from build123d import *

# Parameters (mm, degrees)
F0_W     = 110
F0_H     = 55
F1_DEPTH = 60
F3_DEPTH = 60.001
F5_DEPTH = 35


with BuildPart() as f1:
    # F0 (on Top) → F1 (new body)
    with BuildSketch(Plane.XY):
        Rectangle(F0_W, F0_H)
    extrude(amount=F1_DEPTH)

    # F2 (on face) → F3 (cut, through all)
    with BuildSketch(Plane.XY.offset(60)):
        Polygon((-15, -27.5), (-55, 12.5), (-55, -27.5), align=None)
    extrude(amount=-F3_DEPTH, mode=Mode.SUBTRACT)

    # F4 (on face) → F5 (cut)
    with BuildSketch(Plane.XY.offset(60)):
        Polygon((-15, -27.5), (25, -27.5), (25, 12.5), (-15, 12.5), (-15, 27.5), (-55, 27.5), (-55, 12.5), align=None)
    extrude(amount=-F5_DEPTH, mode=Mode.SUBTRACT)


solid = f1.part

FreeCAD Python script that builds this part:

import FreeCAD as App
import Part
import Sketcher

V = App.Vector


def add_polygon(sketch, points):
    """Adds a closed chain of lines whose ends are joined by coincident constraints."""
    first, n = sketch.GeometryCount, len(points)
    for a, b in zip(points, points[1:] + points[:1]):
        sketch.addGeometry(Part.LineSegment(App.Vector(*a, 0), App.Vector(*b, 0)), False)
    for i in range(n):
        sketch.addConstraint(Sketcher.Constraint("Coincident", first + i, 2, first + (i + 1) % n, 1))

doc = App.newDocument("Part")
body = doc.addObject("PartDesign::Body", "Body")

sketch1 = body.newObject("Sketcher::SketchObject", "Sketch")
sketch1.AttachmentSupport = (doc.getObject("XY_Plane"), [""])
sketch1.MapMode = "FlatFace"
add_polygon(sketch1, [(-55, 27.5), (-55, -27.5), (55, -27.5), (55, 27.5)])
sketch1.addConstraint([
    Sketcher.Constraint("Vertical", 0),
    Sketcher.Constraint("Horizontal", 1),
    Sketcher.Constraint("Vertical", 2),
    Sketcher.Constraint("Horizontal", 3),
    Sketcher.Constraint("Symmetric", 0, 2, 2, 2, -1, 1),
    Sketcher.Constraint("DistanceX", 1, 1, 1, 2, 110.0),
    Sketcher.Constraint("DistanceY", 0, 2, 0, 1, 55.0),
])
pad1 = body.newObject("PartDesign::Pad", "Pad")
pad1.Profile = sketch1
pad1.Length = 60

sketch2 = body.newObject("Sketcher::SketchObject", "Sketch001")
sketch2.AttachmentSupport = (doc.getObject("XY_Plane"), [""])
sketch2.MapMode = "FlatFace"
sketch2.AttachmentOffset = App.Placement(V(0, 0, 60), App.Rotation())
add_polygon(sketch2, [(-15, -27.5), (-55, 12.5), (-55, -27.5)])
sketch2.addConstraint([
    Sketcher.Constraint("Vertical", 1),
    Sketcher.Constraint("Horizontal", 2),
    Sketcher.Constraint("Equal", 2, 1),
    Sketcher.Constraint("DistanceX", 2, 1, 2, 2, 40.0),
    Sketcher.Constraint("DistanceX", 0, 2, -1, 1, 55.0),
    Sketcher.Constraint("DistanceY", -1, 1, 0, 2, 12.5),
])
pocket1 = body.newObject("PartDesign::Pocket", "Pocket")
pocket1.Profile = sketch2
pocket1.Type = "ThroughAll"

sketch3 = body.newObject("Sketcher::SketchObject", "Sketch002")
sketch3.AttachmentSupport = (doc.getObject("XY_Plane"), [""])
sketch3.MapMode = "FlatFace"
sketch3.AttachmentOffset = App.Placement(V(0, 0, 60), App.Rotation())
add_polygon(sketch3, [(-15, -27.5), (25, -27.5), (25, 12.5), (-15, 12.5), (-15, 27.5), (-55, 27.5), (-55, 12.5)])
sketch3.addConstraint([
    Sketcher.Constraint("Horizontal", 0),
    Sketcher.Constraint("Vertical", 1),
    Sketcher.Constraint("Horizontal", 2),
    Sketcher.Constraint("Vertical", 3),
    Sketcher.Constraint("Horizontal", 4),
    Sketcher.Constraint("Vertical", 5),
    Sketcher.Constraint("Symmetric", 3, 2, 6, 2, -1),
    Sketcher.Constraint("Horizontal", 2, 2, 5, 2),
    Sketcher.Constraint("Equal", 2, 4),
    Sketcher.Constraint("Equal", 4, 1),
    Sketcher.Constraint("DistanceX", 0, 1, 0, 2, 40.0),
    Sketcher.Constraint("DistanceY", 3, 1, 3, 2, 15.0),
    Sketcher.Constraint("DistanceX", -1, 1, 0, 2, 25.0),
])
pocket2 = body.newObject("PartDesign::Pocket", "Pocket001")
pocket2.Profile = sketch3
pocket2.Length = 35

doc.recompute()
